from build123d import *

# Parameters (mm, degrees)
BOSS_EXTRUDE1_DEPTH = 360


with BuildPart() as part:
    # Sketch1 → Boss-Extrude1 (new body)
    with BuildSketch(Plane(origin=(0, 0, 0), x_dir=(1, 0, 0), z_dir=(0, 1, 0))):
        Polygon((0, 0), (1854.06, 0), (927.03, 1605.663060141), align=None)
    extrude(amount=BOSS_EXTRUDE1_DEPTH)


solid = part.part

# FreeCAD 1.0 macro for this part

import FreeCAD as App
import Part
import Sketcher
Q = App.Units.Quantity


def add_polygon(sketch, points):
    """Adds a closed chain of lines whose ends are joined by coincident constraints."""
    first, n = sketch.GeometryCount, len(points)
    for a, b in zip(points, points[1:] + points[:1]):
        sketch.addGeometry(Part.LineSegment(App.Vector(*a, 0), App.Vector(*b, 0)), False)
    for i in range(n):
        sketch.addConstraint(Sketcher.Constraint("Coincident", first + i, 2, first + (i + 1) % n, 1))

doc = App.newDocument("Part")
body = doc.addObject("PartDesign::Body", "Body")

# Sketch on XZ plane
sketch1 = body.newObject("Sketcher::SketchObject", "Sketch")
sketch1.AttachmentSupport = (doc.getObject("XZ_Plane"), [""])
sketch1.MapMode = "FlatFace"
add_polygon(sketch1, [(0, 0), (1854, 0), (927, -1606)])  # lines 0-2
sketch1.addConstraint([
    Sketcher.Constraint("Horizontal", 0),
    Sketcher.Constraint("Coincident", 2, 2, -1, 1),
    Sketcher.Constraint("Equal", 1, 2),
    Sketcher.Constraint("Angle", 1, Q("-120 deg")),
    Sketcher.Constraint("DistanceX", 0, 1, 0, 2, 1854.06),
])
pad1 = body.newObject("PartDesign::Pad", "Pad")
pad1.Profile = sketch1
pad1.Length = 360
pad1.Reversed = True

doc.recompute()
